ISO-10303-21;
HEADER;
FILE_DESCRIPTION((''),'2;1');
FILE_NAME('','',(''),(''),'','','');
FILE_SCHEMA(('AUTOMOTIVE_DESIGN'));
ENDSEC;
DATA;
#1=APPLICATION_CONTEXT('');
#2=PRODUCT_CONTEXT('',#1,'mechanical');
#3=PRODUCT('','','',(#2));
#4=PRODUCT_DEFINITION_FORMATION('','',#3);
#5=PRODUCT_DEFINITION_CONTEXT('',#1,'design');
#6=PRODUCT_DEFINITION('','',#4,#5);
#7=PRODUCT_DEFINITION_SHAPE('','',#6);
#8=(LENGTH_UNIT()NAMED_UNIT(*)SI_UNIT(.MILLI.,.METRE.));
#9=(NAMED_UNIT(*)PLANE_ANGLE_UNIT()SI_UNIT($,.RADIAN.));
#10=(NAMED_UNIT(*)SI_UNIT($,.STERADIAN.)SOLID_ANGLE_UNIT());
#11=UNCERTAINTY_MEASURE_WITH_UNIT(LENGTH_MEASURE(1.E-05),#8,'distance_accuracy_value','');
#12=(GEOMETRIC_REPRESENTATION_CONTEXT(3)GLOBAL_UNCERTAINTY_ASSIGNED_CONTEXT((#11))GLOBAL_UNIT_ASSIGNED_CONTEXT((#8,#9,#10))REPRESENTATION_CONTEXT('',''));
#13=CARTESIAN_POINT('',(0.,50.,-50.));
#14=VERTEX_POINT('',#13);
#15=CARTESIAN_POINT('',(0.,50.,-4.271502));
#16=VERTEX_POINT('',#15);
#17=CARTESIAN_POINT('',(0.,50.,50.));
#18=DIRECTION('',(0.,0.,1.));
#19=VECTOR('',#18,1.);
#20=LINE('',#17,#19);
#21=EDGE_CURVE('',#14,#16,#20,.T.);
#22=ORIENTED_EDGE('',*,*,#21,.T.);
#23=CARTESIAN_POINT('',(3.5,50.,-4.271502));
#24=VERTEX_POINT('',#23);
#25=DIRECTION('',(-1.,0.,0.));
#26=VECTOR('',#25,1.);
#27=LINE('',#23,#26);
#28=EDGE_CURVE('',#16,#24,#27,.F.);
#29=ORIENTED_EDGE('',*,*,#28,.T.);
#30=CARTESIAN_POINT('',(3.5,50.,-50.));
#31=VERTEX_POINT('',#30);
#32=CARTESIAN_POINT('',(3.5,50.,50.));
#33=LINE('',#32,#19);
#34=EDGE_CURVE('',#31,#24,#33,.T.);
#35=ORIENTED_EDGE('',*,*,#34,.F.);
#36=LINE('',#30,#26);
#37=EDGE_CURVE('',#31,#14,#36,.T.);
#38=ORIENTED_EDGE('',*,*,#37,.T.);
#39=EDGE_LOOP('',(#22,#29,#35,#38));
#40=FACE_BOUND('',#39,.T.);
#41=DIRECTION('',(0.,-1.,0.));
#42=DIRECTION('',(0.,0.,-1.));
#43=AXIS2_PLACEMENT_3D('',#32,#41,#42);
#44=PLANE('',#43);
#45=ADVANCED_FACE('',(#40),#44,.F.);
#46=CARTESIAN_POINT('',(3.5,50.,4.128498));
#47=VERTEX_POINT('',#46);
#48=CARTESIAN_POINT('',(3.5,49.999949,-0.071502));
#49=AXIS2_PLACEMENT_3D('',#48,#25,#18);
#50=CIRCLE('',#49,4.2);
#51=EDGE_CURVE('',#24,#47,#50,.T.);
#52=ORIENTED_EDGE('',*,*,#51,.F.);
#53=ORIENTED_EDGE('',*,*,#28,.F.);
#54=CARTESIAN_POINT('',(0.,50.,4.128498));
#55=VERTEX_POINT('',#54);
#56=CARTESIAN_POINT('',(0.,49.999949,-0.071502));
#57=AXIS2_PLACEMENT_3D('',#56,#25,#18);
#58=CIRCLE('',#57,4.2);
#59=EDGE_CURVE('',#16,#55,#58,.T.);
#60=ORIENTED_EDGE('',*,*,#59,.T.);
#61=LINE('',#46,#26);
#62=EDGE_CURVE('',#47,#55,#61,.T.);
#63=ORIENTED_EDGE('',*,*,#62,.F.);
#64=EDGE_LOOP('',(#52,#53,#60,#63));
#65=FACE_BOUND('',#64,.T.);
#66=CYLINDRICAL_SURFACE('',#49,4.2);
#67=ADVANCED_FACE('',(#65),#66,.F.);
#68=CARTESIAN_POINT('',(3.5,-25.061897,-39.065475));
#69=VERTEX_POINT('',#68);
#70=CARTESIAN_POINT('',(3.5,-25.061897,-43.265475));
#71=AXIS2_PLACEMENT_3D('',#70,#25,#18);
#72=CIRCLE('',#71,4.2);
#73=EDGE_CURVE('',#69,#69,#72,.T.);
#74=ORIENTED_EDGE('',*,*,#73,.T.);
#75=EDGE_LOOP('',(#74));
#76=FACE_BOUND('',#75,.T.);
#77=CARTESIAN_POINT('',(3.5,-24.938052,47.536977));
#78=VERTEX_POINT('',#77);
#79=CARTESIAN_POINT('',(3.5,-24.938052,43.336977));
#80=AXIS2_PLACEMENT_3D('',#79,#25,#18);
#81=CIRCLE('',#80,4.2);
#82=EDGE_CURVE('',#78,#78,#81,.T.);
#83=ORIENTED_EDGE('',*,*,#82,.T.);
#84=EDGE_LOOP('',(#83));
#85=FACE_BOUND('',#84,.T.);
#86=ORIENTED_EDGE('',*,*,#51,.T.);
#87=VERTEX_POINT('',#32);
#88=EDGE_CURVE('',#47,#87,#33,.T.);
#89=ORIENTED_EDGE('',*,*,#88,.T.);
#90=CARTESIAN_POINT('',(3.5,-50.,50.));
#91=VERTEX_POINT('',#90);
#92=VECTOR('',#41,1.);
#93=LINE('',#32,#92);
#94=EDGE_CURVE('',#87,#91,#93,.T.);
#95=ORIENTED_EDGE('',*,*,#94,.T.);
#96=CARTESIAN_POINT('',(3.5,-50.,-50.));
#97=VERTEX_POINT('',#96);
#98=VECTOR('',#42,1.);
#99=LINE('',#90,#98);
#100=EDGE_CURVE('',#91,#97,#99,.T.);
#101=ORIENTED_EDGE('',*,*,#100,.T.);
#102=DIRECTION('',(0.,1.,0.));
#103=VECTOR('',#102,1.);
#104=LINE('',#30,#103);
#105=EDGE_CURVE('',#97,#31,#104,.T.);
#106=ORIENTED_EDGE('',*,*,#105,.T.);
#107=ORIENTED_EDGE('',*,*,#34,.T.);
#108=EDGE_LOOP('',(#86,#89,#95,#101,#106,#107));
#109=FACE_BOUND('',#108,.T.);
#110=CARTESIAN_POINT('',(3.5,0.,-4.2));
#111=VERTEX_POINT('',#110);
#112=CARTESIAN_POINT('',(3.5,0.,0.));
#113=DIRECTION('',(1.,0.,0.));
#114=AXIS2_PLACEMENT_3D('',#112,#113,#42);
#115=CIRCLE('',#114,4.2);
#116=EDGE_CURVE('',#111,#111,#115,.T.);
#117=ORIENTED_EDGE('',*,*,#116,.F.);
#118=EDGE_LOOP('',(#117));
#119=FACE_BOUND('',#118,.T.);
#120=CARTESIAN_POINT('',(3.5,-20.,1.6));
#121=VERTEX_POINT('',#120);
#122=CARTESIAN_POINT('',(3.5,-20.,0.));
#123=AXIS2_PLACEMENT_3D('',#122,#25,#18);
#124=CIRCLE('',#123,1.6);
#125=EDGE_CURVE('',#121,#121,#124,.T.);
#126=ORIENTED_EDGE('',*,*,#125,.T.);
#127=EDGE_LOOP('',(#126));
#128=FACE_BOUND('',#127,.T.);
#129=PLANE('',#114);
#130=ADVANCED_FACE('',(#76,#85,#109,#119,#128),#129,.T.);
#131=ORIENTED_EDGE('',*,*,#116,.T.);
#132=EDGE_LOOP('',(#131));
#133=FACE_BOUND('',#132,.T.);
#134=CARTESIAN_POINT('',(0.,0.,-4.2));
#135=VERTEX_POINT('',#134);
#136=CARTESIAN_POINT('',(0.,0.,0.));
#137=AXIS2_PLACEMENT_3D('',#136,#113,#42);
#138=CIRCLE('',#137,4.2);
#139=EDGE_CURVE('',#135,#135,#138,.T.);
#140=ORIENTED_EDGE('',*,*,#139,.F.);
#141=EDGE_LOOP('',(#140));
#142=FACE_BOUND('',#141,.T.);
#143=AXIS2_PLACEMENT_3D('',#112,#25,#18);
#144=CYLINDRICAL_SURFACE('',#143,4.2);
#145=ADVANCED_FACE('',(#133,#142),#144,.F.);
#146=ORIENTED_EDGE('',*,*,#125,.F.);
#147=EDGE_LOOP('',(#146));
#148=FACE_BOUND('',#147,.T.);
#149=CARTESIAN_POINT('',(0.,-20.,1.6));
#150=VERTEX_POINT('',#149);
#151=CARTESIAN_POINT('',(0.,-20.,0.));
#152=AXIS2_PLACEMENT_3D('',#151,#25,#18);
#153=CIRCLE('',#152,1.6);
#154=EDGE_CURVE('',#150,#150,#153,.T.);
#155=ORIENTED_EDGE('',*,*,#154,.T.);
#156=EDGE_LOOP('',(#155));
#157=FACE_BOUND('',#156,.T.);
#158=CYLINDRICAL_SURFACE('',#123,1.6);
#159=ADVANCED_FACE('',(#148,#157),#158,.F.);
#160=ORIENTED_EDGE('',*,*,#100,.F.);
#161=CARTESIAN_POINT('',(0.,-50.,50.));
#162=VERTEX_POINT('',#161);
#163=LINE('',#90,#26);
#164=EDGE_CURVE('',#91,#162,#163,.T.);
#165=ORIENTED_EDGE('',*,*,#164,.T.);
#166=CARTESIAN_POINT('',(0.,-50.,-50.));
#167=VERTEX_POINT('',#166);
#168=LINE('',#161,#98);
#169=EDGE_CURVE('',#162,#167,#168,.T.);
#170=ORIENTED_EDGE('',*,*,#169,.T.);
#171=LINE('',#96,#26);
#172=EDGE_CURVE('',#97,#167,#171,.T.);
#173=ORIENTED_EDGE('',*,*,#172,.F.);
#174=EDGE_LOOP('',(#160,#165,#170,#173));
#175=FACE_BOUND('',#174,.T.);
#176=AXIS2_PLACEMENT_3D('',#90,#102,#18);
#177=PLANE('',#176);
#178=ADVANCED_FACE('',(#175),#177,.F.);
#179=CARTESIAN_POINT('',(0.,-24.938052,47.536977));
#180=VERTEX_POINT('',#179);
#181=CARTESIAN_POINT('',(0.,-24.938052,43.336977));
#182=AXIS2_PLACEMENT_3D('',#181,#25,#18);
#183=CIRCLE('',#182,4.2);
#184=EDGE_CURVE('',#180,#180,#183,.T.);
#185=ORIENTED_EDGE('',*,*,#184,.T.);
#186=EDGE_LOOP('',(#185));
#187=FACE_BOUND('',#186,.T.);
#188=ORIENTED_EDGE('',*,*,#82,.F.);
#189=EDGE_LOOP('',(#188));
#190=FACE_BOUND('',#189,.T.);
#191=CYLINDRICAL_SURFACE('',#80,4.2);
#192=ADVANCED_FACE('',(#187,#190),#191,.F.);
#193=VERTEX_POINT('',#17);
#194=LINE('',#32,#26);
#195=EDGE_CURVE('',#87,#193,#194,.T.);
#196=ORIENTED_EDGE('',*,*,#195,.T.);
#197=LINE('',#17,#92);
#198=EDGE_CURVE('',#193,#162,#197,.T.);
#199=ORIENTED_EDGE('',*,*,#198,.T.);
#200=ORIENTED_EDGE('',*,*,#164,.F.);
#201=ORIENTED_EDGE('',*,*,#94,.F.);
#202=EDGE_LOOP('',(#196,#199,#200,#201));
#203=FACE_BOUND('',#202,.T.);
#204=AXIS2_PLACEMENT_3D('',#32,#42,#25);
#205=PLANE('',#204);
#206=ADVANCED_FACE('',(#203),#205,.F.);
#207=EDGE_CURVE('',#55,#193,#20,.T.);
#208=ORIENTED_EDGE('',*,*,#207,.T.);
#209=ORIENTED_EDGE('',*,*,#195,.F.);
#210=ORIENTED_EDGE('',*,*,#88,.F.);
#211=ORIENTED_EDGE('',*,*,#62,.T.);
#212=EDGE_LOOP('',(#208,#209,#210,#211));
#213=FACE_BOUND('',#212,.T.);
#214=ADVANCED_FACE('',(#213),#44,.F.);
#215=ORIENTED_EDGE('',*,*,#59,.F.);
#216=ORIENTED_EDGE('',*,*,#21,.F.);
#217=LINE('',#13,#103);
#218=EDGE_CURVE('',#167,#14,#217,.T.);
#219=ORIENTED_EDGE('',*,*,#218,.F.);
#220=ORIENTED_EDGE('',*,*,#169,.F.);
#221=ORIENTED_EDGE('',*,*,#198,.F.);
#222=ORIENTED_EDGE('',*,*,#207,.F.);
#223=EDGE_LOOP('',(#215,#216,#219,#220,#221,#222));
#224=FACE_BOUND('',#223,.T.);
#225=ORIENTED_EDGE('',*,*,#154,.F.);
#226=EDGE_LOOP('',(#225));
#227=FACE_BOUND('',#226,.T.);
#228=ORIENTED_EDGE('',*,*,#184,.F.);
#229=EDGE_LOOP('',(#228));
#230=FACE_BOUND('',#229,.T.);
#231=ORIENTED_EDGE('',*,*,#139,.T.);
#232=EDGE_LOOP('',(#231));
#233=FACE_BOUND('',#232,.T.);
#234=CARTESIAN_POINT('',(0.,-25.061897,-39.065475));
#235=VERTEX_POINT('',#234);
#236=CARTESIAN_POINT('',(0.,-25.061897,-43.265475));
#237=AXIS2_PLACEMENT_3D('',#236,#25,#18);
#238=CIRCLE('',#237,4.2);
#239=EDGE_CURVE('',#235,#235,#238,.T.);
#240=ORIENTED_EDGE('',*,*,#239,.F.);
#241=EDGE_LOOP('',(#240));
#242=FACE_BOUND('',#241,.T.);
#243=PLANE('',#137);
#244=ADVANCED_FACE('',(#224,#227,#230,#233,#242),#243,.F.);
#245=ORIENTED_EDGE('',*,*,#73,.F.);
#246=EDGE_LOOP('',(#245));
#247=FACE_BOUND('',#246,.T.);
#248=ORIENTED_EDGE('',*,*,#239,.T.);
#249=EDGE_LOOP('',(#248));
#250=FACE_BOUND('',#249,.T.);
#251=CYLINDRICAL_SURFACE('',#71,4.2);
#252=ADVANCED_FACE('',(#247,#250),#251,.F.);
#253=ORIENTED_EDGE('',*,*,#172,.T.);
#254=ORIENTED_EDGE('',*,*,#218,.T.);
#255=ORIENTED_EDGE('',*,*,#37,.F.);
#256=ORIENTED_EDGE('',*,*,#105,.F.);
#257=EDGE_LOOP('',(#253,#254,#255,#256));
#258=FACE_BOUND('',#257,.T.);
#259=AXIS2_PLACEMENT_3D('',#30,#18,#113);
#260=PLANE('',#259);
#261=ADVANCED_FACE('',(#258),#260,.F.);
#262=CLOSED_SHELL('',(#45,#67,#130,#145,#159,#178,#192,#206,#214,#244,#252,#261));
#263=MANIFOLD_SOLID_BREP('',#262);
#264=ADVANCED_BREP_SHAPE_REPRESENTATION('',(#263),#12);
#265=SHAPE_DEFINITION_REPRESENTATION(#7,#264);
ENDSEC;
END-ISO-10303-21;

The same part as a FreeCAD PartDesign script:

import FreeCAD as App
import Part
import Sketcher

V = App.Vector


def add_polygon(sketch, points):
    """Adds a closed chain of lines whose ends are joined by coincident constraints."""
    first, n = sketch.GeometryCount, len(points)
    for a, b in zip(points, points[1:] + points[:1]):
        sketch.addGeometry(Part.LineSegment(App.Vector(*a, 0), App.Vector(*b, 0)), False)
    for i in range(n):
        sketch.addConstraint(Sketcher.Constraint("Coincident", first + i, 2, first + (i + 1) % n, 1))

doc = App.newDocument("Part")
body = doc.addObject("PartDesign::Body", "Body")

# Sketch on YZ plane
sketch1 = body.newObject("Sketcher::SketchObject", "Sketch")
sketch1.AttachmentSupport = (doc.getObject("YZ_Plane"), [""])
sketch1.MapMode = "FlatFace"
add_polygon(sketch1, [(50, 50), (-50, 50), (-50, -50), (50, -50)])  # lines 0-3
sketch1.addGeometry(Part.Circle(V(0, 0, 0), V(0, 0, 1), 4.2), False)  # 4
sketch1.addConstraint([
    Sketcher.Constraint("Horizontal", 0),
    Sketcher.Constraint("Vertical", 1),
    Sketcher.Constraint("Horizontal", 2),
    Sketcher.Constraint("Vertical", 3),
    Sketcher.Constraint("Coincident", 4, 3, -1, 1),
    Sketcher.Constraint("Symmetric", 0, 2, 2, 2, -1, 1),
    Sketcher.Constraint("Equal", 2, 1),
    Sketcher.Constraint("Diameter", 4, 8.4),
    Sketcher.Constraint("DistanceX", 0, 2, 0, 1, 100.0),
])
pad1 = body.newObject("PartDesign::Pad", "Pad")
pad1.Profile = sketch1
pad1.Length = 3.5

# Sketch on YZ plane
sketch2 = body.newObject("Sketcher::SketchObject", "Sketch001")
sketch2.AttachmentSupport = (doc.getObject("YZ_Plane"), [""])
sketch2.MapMode = "FlatFace"
sketch2.addGeometry([
    Part.Circle(V(-24.9, 43.3, 0), V(0, 0, 1), 4.2),
    Part.Circle(V(-25.1, -43.3, 0), V(0, 0, 1), 4.2),
    Part.Circle(V(50, -0.1, 0), V(0, 0, 1), 4.2),
], False)
sketch2.addConstraint([
    Sketcher.Constraint("Equal", 0, 1),
    Sketcher.Constraint("Equal", 1, 2),
    Sketcher.Constraint("Diameter", 0, 8.4),
    Sketcher.Constraint("DistanceX", 0, 3, 2, 3, 74.938001),
    Sketcher.Constraint("DistanceX", 0, 3, -1, 1, 24.938052),
    Sketcher.Constraint("DistanceY", 1, 3, 0, 3, 86.602452),
    Sketcher.Constraint("DistanceY", 2, 3, 0, 3, 43.408479),
    Sketcher.Constraint("DistanceY", -1, 1, 0, 3, 43.336977),
    Sketcher.Constraint("DistanceX", 1, 3, -1, 1, 25.061897),
])
pocket1 = body.newObject("PartDesign::Pocket", "Pocket")
pocket1.Profile = sketch2
pocket1.Type = "ThroughAll"
pocket1.Reversed = True

# Sketch on YZ plane
sketch3 = body.newObject("Sketcher::SketchObject", "Sketch002")
sketch3.AttachmentSupport = (doc.getObject("YZ_Plane"), [""])
sketch3.MapMode = "FlatFace"
sketch3.addGeometry(Part.Circle(V(-20, 0, 0), V(0, 0, 1), 1.6), False)
sketch3.addConstraint([
    Sketcher.Constraint("PointOnObject", 0, 3, -1),
    Sketcher.Constraint("Diameter", 0, 3.2),
    Sketcher.Constraint("DistanceX", 0, 3, -1, 1, 20.0),
])
pocket2 = body.newObject("PartDesign::Pocket", "Pocket001")
pocket2.Profile = sketch3
pocket2.Type = "ThroughAll"
pocket2.Reversed = True

doc.recompute()
